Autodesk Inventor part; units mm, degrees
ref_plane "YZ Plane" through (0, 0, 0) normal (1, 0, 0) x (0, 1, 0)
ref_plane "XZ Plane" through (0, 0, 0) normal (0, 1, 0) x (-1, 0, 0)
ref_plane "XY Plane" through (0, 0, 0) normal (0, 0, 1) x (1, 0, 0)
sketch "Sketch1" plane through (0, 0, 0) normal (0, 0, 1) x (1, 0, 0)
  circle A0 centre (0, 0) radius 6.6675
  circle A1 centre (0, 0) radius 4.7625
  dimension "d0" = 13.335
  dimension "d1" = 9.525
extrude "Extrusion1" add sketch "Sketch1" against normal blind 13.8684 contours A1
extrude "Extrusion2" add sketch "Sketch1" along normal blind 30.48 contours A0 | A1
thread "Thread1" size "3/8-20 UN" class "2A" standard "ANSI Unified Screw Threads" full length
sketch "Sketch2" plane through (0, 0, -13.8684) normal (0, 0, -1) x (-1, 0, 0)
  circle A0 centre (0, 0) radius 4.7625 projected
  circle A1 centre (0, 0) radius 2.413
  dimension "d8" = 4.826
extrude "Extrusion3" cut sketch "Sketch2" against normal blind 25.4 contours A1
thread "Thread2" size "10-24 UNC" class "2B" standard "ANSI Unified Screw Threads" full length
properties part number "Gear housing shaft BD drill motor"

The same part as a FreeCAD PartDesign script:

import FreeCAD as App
import Part
import Sketcher
Q = App.Units.Quantity

doc = App.newDocument("Part")
body = doc.addObject("PartDesign::Body", "Body")

sketch1 = body.newObject("Sketcher::SketchObject", "Sketch")
sketch1.AttachmentSupport = (doc.getObject("XY_Plane"), [""])
sketch1.MapMode = "FlatFace"
sketch1.addGeometry(Part.Circle(App.Vector(0, 0, 0), App.Vector(0, 0, 1), 4.7625), False)
sketch1.addConstraint(Sketcher.Constraint("Coincident", 0, 3, -1, 1))
sketch1.addConstraint(Sketcher.Constraint("Diameter", 0, Q("0.375 in")))
pad1 = body.newObject("PartDesign::Pad", "Pad")
pad1.Profile = sketch1
pad1.Length = Q("0.546 in")
pad1.Reversed = True

sketch2 = body.newObject("Sketcher::SketchObject", "Sketch001")
sketch2.AttachmentSupport = (doc.getObject("XY_Plane"), [""])
sketch2.MapMode = "FlatFace"
sketch2.addGeometry(Part.Circle(App.Vector(0, 0, 0), App.Vector(0, 0, 1), 6.6675), False)
sketch2.addConstraint(Sketcher.Constraint("Coincident", 0, 3, -1, 1))
sketch2.addConstraint(Sketcher.Constraint("Diameter", 0, Q("0.525 in")))
pad2 = body.newObject("PartDesign::Pad", "Pad001")
pad2.Profile = sketch2
pad2.Length = Q("1.2 in")

sketch3 = body.newObject("Sketcher::SketchObject", "Sketch002")
sketch3.AttachmentSupport = (doc.getObject("XY_Plane"), [""])
sketch3.MapMode = "FlatFace"
sketch3.AttachmentOffset = App.Placement(App.Vector(0, 0, -0.546 * 25.4), App.Rotation())
sketch3.addGeometry(Part.Circle(App.Vector(0, 0, 0), App.Vector(0, 0, 1), 2.413), False)
sketch3.addConstraint(Sketcher.Constraint("Coincident", 0, 3, -1, 1))
sketch3.addConstraint(Sketcher.Constraint("Diameter", 0, Q("0.19 in")))
pocket1 = body.newObject("PartDesign::Pocket", "Pocket")
pocket1.Profile = sketch3
pocket1.Length = Q("1 in")
pocket1.Reversed = True

doc.recompute()
